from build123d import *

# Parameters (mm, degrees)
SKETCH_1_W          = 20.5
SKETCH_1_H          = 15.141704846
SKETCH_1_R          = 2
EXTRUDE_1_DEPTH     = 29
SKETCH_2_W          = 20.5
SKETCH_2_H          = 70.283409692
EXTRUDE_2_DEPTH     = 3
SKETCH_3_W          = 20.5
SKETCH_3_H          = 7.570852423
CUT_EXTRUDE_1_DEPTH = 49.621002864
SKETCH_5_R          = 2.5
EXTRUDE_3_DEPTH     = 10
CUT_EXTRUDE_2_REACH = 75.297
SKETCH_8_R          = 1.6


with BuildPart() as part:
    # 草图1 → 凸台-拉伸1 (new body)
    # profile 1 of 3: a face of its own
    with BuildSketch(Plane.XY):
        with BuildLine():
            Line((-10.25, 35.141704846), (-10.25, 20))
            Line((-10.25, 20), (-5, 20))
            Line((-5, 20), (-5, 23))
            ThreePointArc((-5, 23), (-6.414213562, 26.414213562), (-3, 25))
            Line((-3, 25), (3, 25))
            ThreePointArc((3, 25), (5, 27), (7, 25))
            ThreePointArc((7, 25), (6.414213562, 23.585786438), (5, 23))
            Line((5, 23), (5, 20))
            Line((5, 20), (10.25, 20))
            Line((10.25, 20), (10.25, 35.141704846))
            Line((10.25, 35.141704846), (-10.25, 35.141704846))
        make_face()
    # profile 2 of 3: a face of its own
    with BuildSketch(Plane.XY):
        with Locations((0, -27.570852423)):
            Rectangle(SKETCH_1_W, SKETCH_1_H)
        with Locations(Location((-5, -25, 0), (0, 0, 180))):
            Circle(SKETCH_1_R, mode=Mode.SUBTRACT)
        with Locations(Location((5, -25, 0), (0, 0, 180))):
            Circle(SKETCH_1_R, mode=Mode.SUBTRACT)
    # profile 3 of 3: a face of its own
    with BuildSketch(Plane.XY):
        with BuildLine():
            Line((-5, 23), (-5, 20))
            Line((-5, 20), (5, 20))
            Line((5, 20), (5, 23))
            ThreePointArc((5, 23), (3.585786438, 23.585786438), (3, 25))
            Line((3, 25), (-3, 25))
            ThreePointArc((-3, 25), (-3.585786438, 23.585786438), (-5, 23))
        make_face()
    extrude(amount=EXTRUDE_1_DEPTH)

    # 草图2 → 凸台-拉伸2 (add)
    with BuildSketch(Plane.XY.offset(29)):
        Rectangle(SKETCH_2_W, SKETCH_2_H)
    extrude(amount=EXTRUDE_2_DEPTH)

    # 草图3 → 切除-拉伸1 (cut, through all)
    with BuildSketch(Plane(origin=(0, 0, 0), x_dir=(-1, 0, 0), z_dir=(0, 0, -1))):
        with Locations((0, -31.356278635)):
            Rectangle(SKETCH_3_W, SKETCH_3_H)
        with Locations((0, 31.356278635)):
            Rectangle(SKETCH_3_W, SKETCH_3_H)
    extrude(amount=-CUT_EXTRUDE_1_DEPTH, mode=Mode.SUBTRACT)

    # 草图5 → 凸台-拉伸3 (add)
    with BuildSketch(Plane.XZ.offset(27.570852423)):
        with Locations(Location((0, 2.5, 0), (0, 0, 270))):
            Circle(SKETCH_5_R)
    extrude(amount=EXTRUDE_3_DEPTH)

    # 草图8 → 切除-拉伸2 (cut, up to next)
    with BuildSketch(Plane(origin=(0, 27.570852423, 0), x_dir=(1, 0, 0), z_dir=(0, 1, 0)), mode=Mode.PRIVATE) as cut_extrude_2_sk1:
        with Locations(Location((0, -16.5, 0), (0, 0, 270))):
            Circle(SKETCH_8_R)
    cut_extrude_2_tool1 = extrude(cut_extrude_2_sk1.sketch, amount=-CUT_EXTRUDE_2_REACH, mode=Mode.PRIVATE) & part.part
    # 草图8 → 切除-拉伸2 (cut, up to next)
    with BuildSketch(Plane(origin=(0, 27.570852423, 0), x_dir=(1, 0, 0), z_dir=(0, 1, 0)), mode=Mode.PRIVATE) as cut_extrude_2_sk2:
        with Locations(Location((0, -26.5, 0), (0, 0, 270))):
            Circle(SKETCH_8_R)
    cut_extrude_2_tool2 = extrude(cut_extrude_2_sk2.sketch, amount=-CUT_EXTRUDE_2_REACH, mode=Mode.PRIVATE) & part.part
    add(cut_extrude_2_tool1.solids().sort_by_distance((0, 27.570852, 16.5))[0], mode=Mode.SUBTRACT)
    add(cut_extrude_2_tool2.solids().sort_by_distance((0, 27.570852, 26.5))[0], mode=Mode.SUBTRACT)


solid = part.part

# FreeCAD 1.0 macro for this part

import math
import FreeCAD as App
import Part
import Sketcher

V = App.Vector

doc = App.newDocument("Part")
params = doc.addObject("Spreadsheet::Sheet", "Params")
for row, (alias, value) in enumerate([
    ("sketch1_diameter", "4 mm"),
    ("sketch1_width", "20.5 mm"),
    ("pad1_length", "29 mm"),
    ("sketch2_width", "20.5 mm"),
    ("pad2_length", "3 mm"),
    ("sketch3_width", "20.5 mm"),
    ("sketch4_diameter", "5 mm"),
    ("pad3_length", "10 mm"),
    ("sketch5_diameter", "3.2 mm"),
    ("sketch6_diameter", "3.2 mm"),
], start=1):
    params.set(f"A{row}", alias)
    params.set(f"B{row}", "=" + value)
    params.setAlias(f"B{row}", alias)

body = doc.addObject("PartDesign::Body", "Body")
body.AllowCompound = True

# Sketch on XY plane
sketch1 = body.newObject("Sketcher::SketchObject", "Sketch")
sketch1.AttachmentSupport = (doc.getObject("XY_Plane"), [""])
sketch1.MapMode = "FlatFace"
sketch1.addGeometry(Part.LineSegment(V(-10.2, 35.1, 0), V(-10.2, 20, 0)), False)
sketch1.addGeometry(Part.LineSegment(V(-10.2, 20, 0), V(10.2, 20, 0)), False)
sketch1.addGeometry(Part.LineSegment(V(10.2, 20, 0), V(10.2, 35.1, 0)), False)
sketch1.addGeometry(Part.LineSegment(V(10.2, 35.1, 0), V(-10.2, 35.1, 0)), False)
sketch1.addGeometry(Part.ArcOfCircle(Part.Circle(V(-5, 25, 0), V(0, 0, 1), 2), math.radians(0), math.radians(270)), False)
sketch1.addGeometry(Part.ArcOfCircle(Part.Circle(V(-5, 25, 0), V(0, 0, 1), 2), math.radians(-90), math.radians(0)), False)
sketch1.addGeometry(Part.ArcOfCircle(Part.Circle(V(5, 25, 0), V(0, 0, 1), 2), math.radians(0), math.radians(180)), False)
sketch1.addGeometry(Part.ArcOfCircle(Part.Circle(V(5, 25, 0), V(0, 0, 1), 2), math.radians(-90), math.radians(0)), False)
sketch1.addGeometry(Part.ArcOfCircle(Part.Circle(V(5, 25, 0), V(0, 0, 1), 2), math.radians(-180), math.radians(-90)), False)
sketch1.addGeometry(Part.LineSegment(V(-10.2, -20, 0), V(-10.2, -35.1, 0)), False)
sketch1.addGeometry(Part.LineSegment(V(-10.2, -35.1, 0), V(10.2, -35.1, 0)), False)
sketch1.addGeometry(Part.LineSegment(V(10.2, -35.1, 0), V(10.2, -20, 0)), False)
sketch1.addGeometry(Part.LineSegment(V(10.2, -20, 0), V(-10.2, -20, 0)), False)
sketch1.addGeometry(Part.Circle(V(-5, -25, 0), V(0, 0, 1), 2), False)
sketch1.addGeometry(Part.Circle(V(5, -25, 0), V(0, 0, 1), 2), False)
sketch1.addConstraint(Sketcher.Constraint("Coincident", 0, 2, 1, 1))
sketch1.addConstraint(Sketcher.Constraint("Coincident", 1, 2, 2, 1))
sketch1.addConstraint(Sketcher.Constraint("Coincident", 2, 2, 3, 1))
sketch1.addConstraint(Sketcher.Constraint("Coincident", 3, 2, 0, 1))
sketch1.addConstraint(Sketcher.Constraint("Tangent", 4, 1, 5, 2))
sketch1.addConstraint(Sketcher.Constraint("Coincident", 5, 1, 4, 2))
sketch1.addConstraint(Sketcher.Constraint("Tangent", 6, 1, 7, 2))
sketch1.addConstraint(Sketcher.Constraint("Tangent", 7, 1, 8, 2))
sketch1.addConstraint(Sketcher.Constraint("Tangent", 8, 1, 6, 2))
sketch1.addConstraint(Sketcher.Constraint("Coincident", 9, 2, 10, 1))
sketch1.addConstraint(Sketcher.Constraint("Coincident", 10, 2, 11, 1))
sketch1.addConstraint(Sketcher.Constraint("Coincident", 11, 2, 12, 1))
sketch1.addConstraint(Sketcher.Constraint("Coincident", 12, 2, 9, 1))
sketch1.addConstraint(Sketcher.Constraint("Vertical", 0))
sketch1.addConstraint(Sketcher.Constraint("Horizontal", 1))
sketch1.addConstraint(Sketcher.Constraint("Vertical", 2))
sketch1.addConstraint(Sketcher.Constraint("Horizontal", 3))
sketch1.addConstraint(Sketcher.Constraint("Vertical", 9))
sketch1.addConstraint(Sketcher.Constraint("Horizontal", 10))
sketch1.addConstraint(Sketcher.Constraint("Vertical", 11))
sketch1.addConstraint(Sketcher.Constraint("Horizontal", 12))
sketch1.addConstraint(Sketcher.Constraint("Equal", 5, 6))
sketch1.addConstraint(Sketcher.Constraint("Equal", 8, 13))
sketch1.addConstraint(Sketcher.Constraint("Equal", 13, 14))
sketch1.addConstraint(Sketcher.Constraint("Symmetric", 6, 3, 13, 3, -1, 1))
sketch1.addConstraint(Sketcher.Constraint("Symmetric", 4, 3, 14, 3, -1, 1))
sketch1.addConstraint(Sketcher.Constraint("Symmetric", 2, 2, 9, 2, -1, 1))
sketch1.addConstraint(Sketcher.Constraint("Symmetric", 0, 2, 11, 2, -1, 1))
sketch1.addConstraint(Sketcher.Constraint("Symmetric", 4, 3, 6, 3, -2))
sketch1.addConstraint(Sketcher.Constraint("Horizontal", 8, 3, 4, 1))
sketch1.addConstraint(Sketcher.Constraint("Horizontal", 4, 1, 6, 1))
sketch1.addConstraint(Sketcher.Constraint("Horizontal", 6, 1, 8, 1))
sketch1.addConstraint(Sketcher.Constraint("Vertical", 13, 3, 5, 1))
sketch1.addConstraint(Sketcher.Constraint("Vertical", 14, 3, 7, 1))
sketch1.addConstraint(Sketcher.Constraint("Vertical", 3, 2, 9, 2))
sketch1.addConstraint(Sketcher.Constraint("Diameter", 13, 4.0))
sketch1.addConstraint(Sketcher.Constraint("DistanceX", 1, 1, 1, 2, 20.5))
sketch1.addConstraint(Sketcher.Constraint("DistanceX", 4, 3, -1, 1, 5.0))
sketch1.addConstraint(Sketcher.Constraint("DistanceY", -1, 1, 4, 3, 25.0))
sketch1.addConstraint(Sketcher.Constraint("DistanceY", -1, 1, 0, 2, 20.0))
sketch1.addConstraint(Sketcher.Constraint("DistanceY", 0, 2, 0, 1, 15.141705))
sketch1.setExpression("Constraints[35]", "Params.sketch1_diameter")
sketch1.setExpression("Constraints[36]", "Params.sketch1_width")
pad1 = body.newObject("PartDesign::Pad", "Pad")
pad1.Profile = sketch1
pad1.setExpression("Length", "Params.pad1_length")

# Sketch on XY plane
sketch2 = body.newObject("Sketcher::SketchObject", "Sketch001")
sketch2.AttachmentSupport = (doc.getObject("XY_Plane"), [""])
sketch2.MapMode = "FlatFace"
sketch2.AttachmentOffset = App.Placement(V(0, 0, 29), App.Rotation())
sketch2.addGeometry(Part.LineSegment(V(-10, 35, 0), V(-10, -35, 0)), False)
sketch2.addGeometry(Part.LineSegment(V(-10, -35, 0), V(10, -35, 0)), False)
sketch2.addGeometry(Part.LineSegment(V(10, -35, 0), V(10, 35, 0)), False)
sketch2.addGeometry(Part.LineSegment(V(10, 35, 0), V(-10, 35, 0)), False)
sketch2.addConstraint(Sketcher.Constraint("Coincident", 0, 2, 1, 1))
sketch2.addConstraint(Sketcher.Constraint("Coincident", 1, 2, 2, 1))
sketch2.addConstraint(Sketcher.Constraint("Coincident", 2, 2, 3, 1))
sketch2.addConstraint(Sketcher.Constraint("Coincident", 3, 2, 0, 1))
sketch2.addConstraint(Sketcher.Constraint("Vertical", 0))
sketch2.addConstraint(Sketcher.Constraint("Horizontal", 1))
sketch2.addConstraint(Sketcher.Constraint("Vertical", 2))
sketch2.addConstraint(Sketcher.Constraint("Horizontal", 3))
sketch2.addConstraint(Sketcher.Constraint("Symmetric", 0, 2, 2, 2, -1, 1))
sketch2.addConstraint(Sketcher.Constraint("DistanceX", 1, 1, 1, 2, 20.5))
sketch2.addConstraint(Sketcher.Constraint("DistanceY", 0, 2, 0, 1, 70.28341))
sketch2.setExpression("Constraints[9]", "Params.sketch2_width")
pad2 = body.newObject("PartDesign::Pad", "Pad001")
pad2.Profile = sketch2
pad2.setExpression("Length", "Params.pad2_length")

# Sketch on XY plane
sketch3 = body.newObject("Sketcher::SketchObject", "Sketch002")
sketch3.AttachmentSupport = (doc.getObject("XY_Plane"), [""])
sketch3.MapMode = "FlatFace"
sketch3.addGeometry(Part.LineSegment(V(10, -28, 0), V(10, -35, 0)), False)
sketch3.addGeometry(Part.LineSegment(V(10, -35, 0), V(-10, -35, 0)), False)
sketch3.addGeometry(Part.LineSegment(V(-10, -35, 0), V(-10, -28, 0)), False)
sketch3.addGeometry(Part.LineSegment(V(-10, -28, 0), V(10, -28, 0)), False)
sketch3.addGeometry(Part.LineSegment(V(10, 35, 0), V(10, 28, 0)), False)
sketch3.addGeometry(Part.LineSegment(V(10, 28, 0), V(-10, 28, 0)), False)
sketch3.addGeometry(Part.LineSegment(V(-10, 28, 0), V(-10, 35, 0)), False)
sketch3.addGeometry(Part.LineSegment(V(-10, 35, 0), V(10, 35, 0)), False)
sketch3.addConstraint(Sketcher.Constraint("Coincident", 0, 2, 1, 1))
sketch3.addConstraint(Sketcher.Constraint("Coincident", 1, 2, 2, 1))
sketch3.addConstraint(Sketcher.Constraint("Coincident", 2, 2, 3, 1))
sketch3.addConstraint(Sketcher.Constraint("Coincident", 3, 2, 0, 1))
sketch3.addConstraint(Sketcher.Constraint("Coincident", 4, 2, 5, 1))
sketch3.addConstraint(Sketcher.Constraint("Coincident", 5, 2, 6, 1))
sketch3.addConstraint(Sketcher.Constraint("Coincident", 6, 2, 7, 1))
sketch3.addConstraint(Sketcher.Constraint("Coincident", 7, 2, 4, 1))
sketch3.addConstraint(Sketcher.Constraint("Vertical", 0))
sketch3.addConstraint(Sketcher.Constraint("Horizontal", 1))
sketch3.addConstraint(Sketcher.Constraint("Vertical", 2))
sketch3.addConstraint(Sketcher.Constraint("Horizontal", 3))
sketch3.addConstraint(Sketcher.Constraint("Vertical", 4))
sketch3.addConstraint(Sketcher.Constraint("Horizontal", 5))
sketch3.addConstraint(Sketcher.Constraint("Vertical", 6))
sketch3.addConstraint(Sketcher.Constraint("Horizontal", 7))
sketch3.addConstraint(Sketcher.Constraint("Symmetric", 2, 2, 4, 2, -1, 1))
sketch3.addConstraint(Sketcher.Constraint("Symmetric", 0, 2, 6, 2, -1, 1))
sketch3.addConstraint(Sketcher.Constraint("Vertical", 3, 2, 4, 2))
sketch3.addConstraint(Sketcher.Constraint("DistanceX", 1, 2, 1, 1, 20.5))
sketch3.addConstraint(Sketcher.Constraint("DistanceY", 0, 2, 0, 1, 7.570852))
sketch3.addConstraint(Sketcher.Constraint("DistanceY", 1, 2, 6, 2, 70.28341))
sketch3.setExpression("Constraints[19]", "Params.sketch3_width")
pocket1 = body.newObject("PartDesign::Pocket", "Pocket")
pocket1.Profile = sketch3
pocket1.Type = "ThroughAll"
pocket1.Reversed = True

# Sketch on XZ plane
sketch4 = body.newObject("Sketcher::SketchObject", "Sketch003")
sketch4.AttachmentSupport = (doc.getObject("XZ_Plane"), [""])
sketch4.MapMode = "FlatFace"
sketch4.AttachmentOffset = App.Placement(V(0, 0, 27.570852), App.Rotation())
sketch4.addGeometry(Part.Circle(V(0, 2.5, 0), V(0, 0, 1), 2.5), False)
sketch4.addConstraint(Sketcher.Constraint("PointOnObject", 0, 3, -2))
sketch4.addConstraint(Sketcher.Constraint("Diameter", 0, 5.0))
sketch4.addConstraint(Sketcher.Constraint("DistanceY", -1, 1, 0, 3, 2.5))
sketch4.setExpression("Constraints[1]", "Params.sketch4_diameter")
pad3 = body.newObject("PartDesign::Pad", "Pad002")
pad3.Profile = sketch4
pad3.setExpression("Length", "Params.pad3_length")

# Sketch on XZ plane
sketch5 = body.newObject("Sketcher::SketchObject", "Sketch004")
sketch5.AttachmentSupport = (doc.getObject("XZ_Plane"), [""])
sketch5.MapMode = "FlatFace"
sketch5.AttachmentOffset = App.Placement(V(0, 0, -27.570852), App.Rotation())
sketch5.addGeometry(Part.Circle(V(0, 16.5, 0), V(0, 0, 1), 1.6), False)
sketch5.addConstraint(Sketcher.Constraint("PointOnObject", 0, 3, -2))
sketch5.addConstraint(Sketcher.Constraint("Diameter", 0, 3.2))
sketch5.addConstraint(Sketcher.Constraint("DistanceY", -1, 1, 0, 3, 16.5))
sketch5.setExpression("Constraints[1]", "Params.sketch5_diameter")
pocket2 = body.newObject("PartDesign::Pocket", "Pocket001")
pocket2.Profile = sketch5
pocket2.Type = "UpToFirst"
pocket2.Reversed = True

# Sketch on XZ plane
sketch6 = body.newObject("Sketcher::SketchObject", "Sketch005")
sketch6.AttachmentSupport = (doc.getObject("XZ_Plane"), [""])
sketch6.MapMode = "FlatFace"
sketch6.AttachmentOffset = App.Placement(V(0, 0, -27.570852), App.Rotation())
sketch6.addGeometry(Part.Circle(V(0, 26.5, 0), V(0, 0, 1), 1.6), False)
sketch6.addConstraint(Sketcher.Constraint("PointOnObject", 0, 3, -2))
sketch6.addConstraint(Sketcher.Constraint("Diameter", 0, 3.2))
sketch6.addConstraint(Sketcher.Constraint("DistanceY", -1, 1, 0, 3, 26.5))
sketch6.setExpression("Constraints[1]", "Params.sketch6_diameter")
pocket3 = body.newObject("PartDesign::Pocket", "Pocket002")
pocket3.Profile = sketch6
pocket3.Type = "UpToFirst"
pocket3.Reversed = True

doc.recompute()
